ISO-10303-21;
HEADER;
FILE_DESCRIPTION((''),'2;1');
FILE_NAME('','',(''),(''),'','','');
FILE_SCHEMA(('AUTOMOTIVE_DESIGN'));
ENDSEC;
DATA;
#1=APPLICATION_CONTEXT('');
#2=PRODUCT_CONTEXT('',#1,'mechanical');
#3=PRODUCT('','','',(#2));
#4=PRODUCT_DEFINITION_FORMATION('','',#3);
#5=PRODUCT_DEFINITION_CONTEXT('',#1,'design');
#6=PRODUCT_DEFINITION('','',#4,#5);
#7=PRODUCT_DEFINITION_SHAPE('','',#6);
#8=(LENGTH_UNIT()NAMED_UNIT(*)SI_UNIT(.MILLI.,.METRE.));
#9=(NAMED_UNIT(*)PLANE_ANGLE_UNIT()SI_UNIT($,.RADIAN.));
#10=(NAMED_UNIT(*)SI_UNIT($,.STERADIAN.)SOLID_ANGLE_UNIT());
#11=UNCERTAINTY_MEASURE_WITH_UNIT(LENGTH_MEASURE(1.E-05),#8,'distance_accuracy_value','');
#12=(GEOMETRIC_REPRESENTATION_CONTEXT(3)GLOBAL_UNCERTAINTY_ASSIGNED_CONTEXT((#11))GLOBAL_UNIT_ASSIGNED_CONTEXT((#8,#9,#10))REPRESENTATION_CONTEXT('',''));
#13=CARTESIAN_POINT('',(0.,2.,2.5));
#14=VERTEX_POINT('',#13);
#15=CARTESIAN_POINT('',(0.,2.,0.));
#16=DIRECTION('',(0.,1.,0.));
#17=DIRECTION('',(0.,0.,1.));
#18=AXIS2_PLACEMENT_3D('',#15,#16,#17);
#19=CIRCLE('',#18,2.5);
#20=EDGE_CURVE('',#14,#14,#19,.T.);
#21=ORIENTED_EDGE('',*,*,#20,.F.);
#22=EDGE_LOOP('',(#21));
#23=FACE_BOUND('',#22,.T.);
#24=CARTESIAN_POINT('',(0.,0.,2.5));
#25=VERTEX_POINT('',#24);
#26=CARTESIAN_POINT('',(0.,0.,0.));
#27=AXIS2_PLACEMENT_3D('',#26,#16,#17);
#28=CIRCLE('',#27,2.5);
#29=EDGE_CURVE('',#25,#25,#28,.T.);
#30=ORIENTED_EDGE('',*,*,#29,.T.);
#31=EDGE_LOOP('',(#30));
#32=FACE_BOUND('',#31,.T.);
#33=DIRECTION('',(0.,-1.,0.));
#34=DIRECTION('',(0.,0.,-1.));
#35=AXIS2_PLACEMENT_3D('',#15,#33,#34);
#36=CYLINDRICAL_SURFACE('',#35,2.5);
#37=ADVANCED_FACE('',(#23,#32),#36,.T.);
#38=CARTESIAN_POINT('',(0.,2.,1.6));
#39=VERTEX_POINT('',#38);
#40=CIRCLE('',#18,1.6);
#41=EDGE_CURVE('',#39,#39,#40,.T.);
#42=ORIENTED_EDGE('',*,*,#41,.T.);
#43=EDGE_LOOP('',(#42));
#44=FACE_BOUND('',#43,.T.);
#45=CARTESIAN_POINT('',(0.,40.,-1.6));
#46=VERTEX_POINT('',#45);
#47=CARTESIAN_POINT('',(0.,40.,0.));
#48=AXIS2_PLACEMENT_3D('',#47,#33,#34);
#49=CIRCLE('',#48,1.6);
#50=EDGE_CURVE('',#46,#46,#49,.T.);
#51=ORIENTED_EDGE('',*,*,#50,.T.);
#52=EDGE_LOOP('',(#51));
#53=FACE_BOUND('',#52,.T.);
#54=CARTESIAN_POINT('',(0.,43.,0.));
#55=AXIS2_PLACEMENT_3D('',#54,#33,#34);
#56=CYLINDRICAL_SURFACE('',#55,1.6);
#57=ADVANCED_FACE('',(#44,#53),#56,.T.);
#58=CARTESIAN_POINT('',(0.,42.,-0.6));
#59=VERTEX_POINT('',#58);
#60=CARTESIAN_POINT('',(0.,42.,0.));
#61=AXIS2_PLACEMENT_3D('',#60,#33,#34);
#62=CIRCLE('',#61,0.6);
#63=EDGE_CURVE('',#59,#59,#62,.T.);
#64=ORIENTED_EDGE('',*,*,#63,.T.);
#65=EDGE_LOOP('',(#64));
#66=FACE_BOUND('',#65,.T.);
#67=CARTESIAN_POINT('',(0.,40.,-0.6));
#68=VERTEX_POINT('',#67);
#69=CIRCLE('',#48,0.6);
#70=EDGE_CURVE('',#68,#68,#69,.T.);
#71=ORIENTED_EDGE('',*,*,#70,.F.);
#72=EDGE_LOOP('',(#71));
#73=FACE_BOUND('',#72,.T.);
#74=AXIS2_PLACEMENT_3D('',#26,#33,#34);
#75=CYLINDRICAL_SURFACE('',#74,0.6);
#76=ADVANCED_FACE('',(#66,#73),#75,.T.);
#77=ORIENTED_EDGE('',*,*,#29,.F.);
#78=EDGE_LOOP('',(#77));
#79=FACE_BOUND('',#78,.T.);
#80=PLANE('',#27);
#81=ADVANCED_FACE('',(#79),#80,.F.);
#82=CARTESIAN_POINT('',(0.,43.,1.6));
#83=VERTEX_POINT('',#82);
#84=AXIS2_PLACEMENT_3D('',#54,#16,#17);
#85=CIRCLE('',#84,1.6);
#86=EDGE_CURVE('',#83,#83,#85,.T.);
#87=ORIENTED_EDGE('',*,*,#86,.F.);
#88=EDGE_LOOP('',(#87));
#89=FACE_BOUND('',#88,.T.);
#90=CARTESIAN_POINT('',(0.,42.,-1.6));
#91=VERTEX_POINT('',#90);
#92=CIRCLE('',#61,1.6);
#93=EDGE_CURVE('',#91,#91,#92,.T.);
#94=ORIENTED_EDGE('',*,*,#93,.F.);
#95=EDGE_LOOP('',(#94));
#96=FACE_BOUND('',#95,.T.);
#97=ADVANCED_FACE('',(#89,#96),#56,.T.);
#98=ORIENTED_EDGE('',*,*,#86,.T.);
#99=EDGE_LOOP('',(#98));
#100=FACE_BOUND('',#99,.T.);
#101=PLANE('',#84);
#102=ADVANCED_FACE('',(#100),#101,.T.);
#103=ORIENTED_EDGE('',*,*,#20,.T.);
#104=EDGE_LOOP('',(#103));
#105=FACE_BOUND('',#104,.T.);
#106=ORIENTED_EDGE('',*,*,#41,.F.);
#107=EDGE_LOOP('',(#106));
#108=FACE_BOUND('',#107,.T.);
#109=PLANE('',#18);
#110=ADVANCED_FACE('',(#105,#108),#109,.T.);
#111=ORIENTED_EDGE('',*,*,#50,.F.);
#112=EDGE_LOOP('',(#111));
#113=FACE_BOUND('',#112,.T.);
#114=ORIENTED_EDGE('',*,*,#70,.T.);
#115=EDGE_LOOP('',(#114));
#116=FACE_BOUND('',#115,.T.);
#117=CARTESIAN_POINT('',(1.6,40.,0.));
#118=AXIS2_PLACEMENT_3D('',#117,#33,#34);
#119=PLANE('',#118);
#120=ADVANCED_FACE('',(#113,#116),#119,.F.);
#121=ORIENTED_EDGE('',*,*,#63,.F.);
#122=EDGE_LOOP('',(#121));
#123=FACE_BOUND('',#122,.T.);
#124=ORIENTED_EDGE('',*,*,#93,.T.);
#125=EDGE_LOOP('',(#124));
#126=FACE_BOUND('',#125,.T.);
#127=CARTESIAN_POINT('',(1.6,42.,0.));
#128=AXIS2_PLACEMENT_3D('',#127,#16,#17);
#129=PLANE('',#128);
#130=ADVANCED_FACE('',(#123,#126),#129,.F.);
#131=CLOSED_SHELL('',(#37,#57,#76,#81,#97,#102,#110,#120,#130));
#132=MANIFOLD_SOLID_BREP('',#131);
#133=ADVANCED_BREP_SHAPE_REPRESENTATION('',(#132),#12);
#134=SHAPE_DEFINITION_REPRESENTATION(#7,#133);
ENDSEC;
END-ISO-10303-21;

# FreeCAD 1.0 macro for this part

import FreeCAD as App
import Part
import Sketcher

V = App.Vector
Q = App.Units.Quantity

doc = App.newDocument("Part")
body = doc.addObject("PartDesign::Body", "Body")

sketch1 = body.newObject("Sketcher::SketchObject", "Sketch")
sketch1.AttachmentSupport = (doc.getObject("XZ_Plane"), [""])
sketch1.MapMode = "FlatFace"
sketch1.addGeometry(Part.Circle(V(0, 0, 0), V(0, 0, 1), 1.6), False)
sketch1.addConstraint([
    Sketcher.Constraint("Coincident", 0, 3, -1, 1),
    Sketcher.Constraint("Diameter", 0, Q("3.2 mm")),
])
pad1 = body.newObject("PartDesign::Pad", "Pad")
pad1.Profile = sketch1
pad1.Length = 43
pad1.Reversed = True

sketch2 = body.newObject("Sketcher::SketchObject", "Sketch001")
sketch2.AttachmentSupport = (doc.getObject("XY_Plane"), [""])
sketch2.MapMode = "FlatFace"
sketch2.addGeometry([
    Part.LineSegment(V(0.6, 42, 0), V(0.6, 40, 0)),
    Part.LineSegment(V(0.6, 40, 0), V(1.6, 40, 0)),
    Part.LineSegment(V(1.6, 40, 0), V(1.6, 42, 0)),
    Part.LineSegment(V(1.6, 42, 0), V(0.6, 42, 0)),
], False)
sketch2.addConstraint([
    Sketcher.Constraint("Coincident", 0, 2, 1, 1),
    Sketcher.Constraint("Coincident", 1, 2, 2, 1),
    Sketcher.Constraint("Coincident", 2, 2, 3, 1),
    Sketcher.Constraint("Coincident", 3, 2, 0, 1),
    Sketcher.Constraint("Vertical", 0),
    Sketcher.Constraint("Horizontal", 1),
    Sketcher.Constraint("Vertical", 2),
    Sketcher.Constraint("Horizontal", 3),
    Sketcher.Constraint("DistanceX", 1, 1, 1, 2, Q("1 mm")),
    Sketcher.Constraint("DistanceY", 0, 2, 0, 1, Q("2 mm")),
    Sketcher.Constraint("DistanceY", -1, 1, 0, 2, Q("40 mm")),
    Sketcher.Constraint("DistanceX", -1, 1, 0, 2, Q("0.6 mm")),
])
groove = body.newObject("PartDesign::Groove", "Groove")
groove.Profile = sketch2
groove.ReferenceAxis = (sketch2, ["V_Axis"])
groove.Angle = 360

sketch3 = body.newObject("Sketcher::SketchObject", "Sketch002")
sketch3.AttachmentSupport = (doc.getObject("XZ_Plane"), [""])
sketch3.MapMode = "FlatFace"
sketch3.addGeometry(Part.Circle(V(0, 0, 0), V(0, 0, 1), 2.5), False)
sketch3.addConstraint([
    Sketcher.Constraint("Coincident", 0, 3, -1, 1),
    Sketcher.Constraint("Diameter", 0, Q("5 mm")),
])
pad2 = body.newObject("PartDesign::Pad", "Pad001")
pad2.Profile = sketch3
pad2.Length = 2
pad2.Reversed = True

doc.recompute()
